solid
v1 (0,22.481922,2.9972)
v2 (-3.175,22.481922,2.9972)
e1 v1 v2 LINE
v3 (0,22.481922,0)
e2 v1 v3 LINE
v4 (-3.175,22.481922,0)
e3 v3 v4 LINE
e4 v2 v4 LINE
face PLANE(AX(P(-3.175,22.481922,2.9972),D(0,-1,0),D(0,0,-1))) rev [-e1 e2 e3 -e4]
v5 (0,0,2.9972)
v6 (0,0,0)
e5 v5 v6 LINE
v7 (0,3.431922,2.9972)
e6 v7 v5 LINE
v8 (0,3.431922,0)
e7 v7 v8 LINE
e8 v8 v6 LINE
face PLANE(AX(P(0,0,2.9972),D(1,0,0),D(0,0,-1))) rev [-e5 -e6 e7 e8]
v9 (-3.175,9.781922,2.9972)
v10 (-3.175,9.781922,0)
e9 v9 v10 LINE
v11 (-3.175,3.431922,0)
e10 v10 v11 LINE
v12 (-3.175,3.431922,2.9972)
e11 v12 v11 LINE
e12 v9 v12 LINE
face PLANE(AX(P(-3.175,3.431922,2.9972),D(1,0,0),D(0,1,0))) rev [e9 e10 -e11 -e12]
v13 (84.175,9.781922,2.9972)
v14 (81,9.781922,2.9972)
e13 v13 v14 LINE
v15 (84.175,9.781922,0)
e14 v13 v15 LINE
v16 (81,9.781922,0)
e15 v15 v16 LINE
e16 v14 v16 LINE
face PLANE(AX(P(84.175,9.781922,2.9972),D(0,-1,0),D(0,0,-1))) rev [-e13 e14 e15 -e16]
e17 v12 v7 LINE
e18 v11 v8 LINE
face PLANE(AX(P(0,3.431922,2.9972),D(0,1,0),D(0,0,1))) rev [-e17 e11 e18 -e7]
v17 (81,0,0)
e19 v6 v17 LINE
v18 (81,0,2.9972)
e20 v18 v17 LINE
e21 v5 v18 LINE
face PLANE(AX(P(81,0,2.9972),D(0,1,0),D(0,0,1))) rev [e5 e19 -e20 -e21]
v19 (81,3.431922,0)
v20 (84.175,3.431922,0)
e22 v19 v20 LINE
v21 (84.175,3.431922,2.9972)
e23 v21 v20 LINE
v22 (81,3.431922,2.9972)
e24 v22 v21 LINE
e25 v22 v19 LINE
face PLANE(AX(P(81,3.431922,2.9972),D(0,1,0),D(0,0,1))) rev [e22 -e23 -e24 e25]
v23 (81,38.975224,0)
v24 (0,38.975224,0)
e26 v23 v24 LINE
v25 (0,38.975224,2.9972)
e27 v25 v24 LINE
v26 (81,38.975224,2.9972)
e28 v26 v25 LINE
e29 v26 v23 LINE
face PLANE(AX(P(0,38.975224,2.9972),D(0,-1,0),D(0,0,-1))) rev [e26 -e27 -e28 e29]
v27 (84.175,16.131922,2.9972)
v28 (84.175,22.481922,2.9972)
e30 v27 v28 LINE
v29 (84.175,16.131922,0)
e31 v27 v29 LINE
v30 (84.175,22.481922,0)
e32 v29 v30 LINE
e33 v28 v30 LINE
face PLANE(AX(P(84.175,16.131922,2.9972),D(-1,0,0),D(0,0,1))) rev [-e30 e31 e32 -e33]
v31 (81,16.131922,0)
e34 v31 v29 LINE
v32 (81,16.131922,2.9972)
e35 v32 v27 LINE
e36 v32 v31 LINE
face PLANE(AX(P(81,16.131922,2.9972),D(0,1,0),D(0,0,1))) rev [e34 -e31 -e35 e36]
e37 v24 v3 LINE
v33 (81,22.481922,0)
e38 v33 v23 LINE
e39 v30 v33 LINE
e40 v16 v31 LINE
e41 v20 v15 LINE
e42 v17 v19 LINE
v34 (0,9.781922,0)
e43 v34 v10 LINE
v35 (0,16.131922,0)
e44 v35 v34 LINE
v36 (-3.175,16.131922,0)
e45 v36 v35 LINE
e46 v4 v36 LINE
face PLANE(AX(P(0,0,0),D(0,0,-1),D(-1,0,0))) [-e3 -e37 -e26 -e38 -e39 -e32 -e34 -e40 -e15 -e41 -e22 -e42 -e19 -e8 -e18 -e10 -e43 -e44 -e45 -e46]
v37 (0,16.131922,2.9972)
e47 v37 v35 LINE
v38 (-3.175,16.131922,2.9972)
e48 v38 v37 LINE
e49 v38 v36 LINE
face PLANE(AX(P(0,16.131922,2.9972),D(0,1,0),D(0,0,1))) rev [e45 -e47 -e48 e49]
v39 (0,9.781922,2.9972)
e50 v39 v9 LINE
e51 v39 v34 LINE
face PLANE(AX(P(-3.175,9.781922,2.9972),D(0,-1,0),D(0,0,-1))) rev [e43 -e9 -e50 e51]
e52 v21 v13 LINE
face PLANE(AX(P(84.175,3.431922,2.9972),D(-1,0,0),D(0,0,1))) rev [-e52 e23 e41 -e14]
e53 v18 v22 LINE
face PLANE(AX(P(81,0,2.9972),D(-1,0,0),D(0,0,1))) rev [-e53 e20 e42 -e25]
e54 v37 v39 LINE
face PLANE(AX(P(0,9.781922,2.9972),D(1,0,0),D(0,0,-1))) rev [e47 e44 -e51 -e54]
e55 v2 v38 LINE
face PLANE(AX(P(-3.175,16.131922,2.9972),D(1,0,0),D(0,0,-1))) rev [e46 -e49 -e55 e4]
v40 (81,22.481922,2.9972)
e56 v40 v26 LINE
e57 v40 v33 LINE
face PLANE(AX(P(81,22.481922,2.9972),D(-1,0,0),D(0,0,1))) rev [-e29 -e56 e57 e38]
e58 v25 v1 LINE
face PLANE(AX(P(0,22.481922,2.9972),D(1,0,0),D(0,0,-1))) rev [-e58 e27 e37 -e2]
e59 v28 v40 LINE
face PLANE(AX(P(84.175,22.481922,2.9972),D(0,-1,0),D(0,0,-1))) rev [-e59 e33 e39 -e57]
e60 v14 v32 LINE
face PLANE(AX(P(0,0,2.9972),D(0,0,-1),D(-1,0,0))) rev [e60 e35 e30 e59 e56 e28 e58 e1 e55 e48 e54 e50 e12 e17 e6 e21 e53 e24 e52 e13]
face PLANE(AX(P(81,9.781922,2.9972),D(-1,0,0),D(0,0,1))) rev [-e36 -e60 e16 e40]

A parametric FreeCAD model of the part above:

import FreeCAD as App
import Part
import Sketcher

V = App.Vector
Q = App.Units.Quantity


def add_polygon(sketch, points):
    """Adds a closed chain of lines whose ends are joined by coincident constraints."""
    first, n = sketch.GeometryCount, len(points)
    for a, b in zip(points, points[1:] + points[:1]):
        sketch.addGeometry(Part.LineSegment(App.Vector(*a, 0), App.Vector(*b, 0)), False)
    for i in range(n):
        sketch.addConstraint(Sketcher.Constraint("Coincident", first + i, 2, first + (i + 1) % n, 1))

doc = App.newDocument("Part")
params = doc.addObject("Spreadsheet::Sheet", "Params")
for row, (alias, value) in enumerate([
    ("sketch1_height", "0.25 in"),
    ("sketch1_width", "0.125 in"),
    ("pad1_length", "0.118 in"),
], start=1):
    params.set(f"A{row}", alias)
    params.set(f"B{row}", "=" + value)
    params.setAlias(f"B{row}", alias)

body = doc.addObject("PartDesign::Body", "Body")

# Sketch on XY plane
sketch1 = body.newObject("Sketcher::SketchObject", "Sketch")
sketch1.AttachmentSupport = (doc.getObject("XY_Plane"), [""])
sketch1.MapMode = "FlatFace"
add_polygon(sketch1, [(0, 3.431922), (0, 0), (81, 0), (81, 3.431922), (84.175, 3.431922), (84.175, 9.781922), (81, 9.781922), (81, 16.131922), (84.175, 16.131922), (84.175, 22.481922), (81, 22.481922), (81, 38.975224), (0, 38.975224), (0, 22.481922), (-3.175, 22.481922), (-3.175, 16.131922), (0, 16.131922), (0, 9.781922), (-3.175, 9.781922), (-3.175, 3.431922)])  # lines 0-19
sketch1.addConstraint([
    Sketcher.Constraint("Vertical", 0),
    Sketcher.Constraint("Horizontal", 1),
    Sketcher.Constraint("Vertical", 2),
    Sketcher.Constraint("Horizontal", 3),
    Sketcher.Constraint("Vertical", 4),
    Sketcher.Constraint("Horizontal", 5),
    Sketcher.Constraint("Vertical", 6),
    Sketcher.Constraint("Horizontal", 7),
    Sketcher.Constraint("Vertical", 8),
    Sketcher.Constraint("Horizontal", 9),
    Sketcher.Constraint("Vertical", 10),
    Sketcher.Constraint("Horizontal", 11),
    Sketcher.Constraint("Vertical", 12),
    Sketcher.Constraint("Horizontal", 13),
    Sketcher.Constraint("Vertical", 14),
    Sketcher.Constraint("Horizontal", 15),
    Sketcher.Constraint("Vertical", 16),
    Sketcher.Constraint("Horizontal", 17),
    Sketcher.Constraint("Vertical", 18),
    Sketcher.Constraint("Horizontal", 19),
    Sketcher.Constraint("Coincident", 0, 2, -1, 1),
    Sketcher.Constraint("PointOnObject", 11, 2, -2),
    Sketcher.Constraint("PointOnObject", 15, 2, -2),
    Sketcher.Constraint("Horizontal", 9, 2, 12, 2),
    Sketcher.Constraint("Horizontal", 7, 2, 14, 2),
    Sketcher.Constraint("Horizontal", 5, 2, 16, 2),
    Sketcher.Constraint("Horizontal", 3, 2, 18, 2),
    Sketcher.Constraint("Vertical", 2, 2, 5, 2),
    Sketcher.Constraint("Vertical", 4, 2, 7, 2),
    Sketcher.Constraint("Vertical", 6, 2, 9, 2),
    Sketcher.Constraint("Vertical", 14, 2, 17, 2),
    Sketcher.Constraint("Equal", 9, 13),
    Sketcher.Constraint("Equal", 4, 6),
    Sketcher.Constraint("Equal", 6, 8),
    Sketcher.Constraint("DistanceY", 4, 1, 4, 2, Q("0.25 in")),
    Sketcher.Constraint("DistanceX", 3, 1, 3, 2, Q("0.125 in")),
    Sketcher.Constraint("DistanceX", 1, 1, 1, 2, 81.0),
    Sketcher.Constraint("DistanceY", 0, 2, 0, 1, 3.431922),
    Sketcher.Constraint("DistanceY", 10, 1, 10, 2, 16.493302),
])
sketch1.setExpression("Constraints[54]", "Params.sketch1_height")
sketch1.setExpression("Constraints[55]", "Params.sketch1_width")
pad1 = body.newObject("PartDesign::Pad", "Pad")
pad1.Profile = sketch1
pad1.setExpression("Length", "Params.pad1_length")

doc.recompute()
